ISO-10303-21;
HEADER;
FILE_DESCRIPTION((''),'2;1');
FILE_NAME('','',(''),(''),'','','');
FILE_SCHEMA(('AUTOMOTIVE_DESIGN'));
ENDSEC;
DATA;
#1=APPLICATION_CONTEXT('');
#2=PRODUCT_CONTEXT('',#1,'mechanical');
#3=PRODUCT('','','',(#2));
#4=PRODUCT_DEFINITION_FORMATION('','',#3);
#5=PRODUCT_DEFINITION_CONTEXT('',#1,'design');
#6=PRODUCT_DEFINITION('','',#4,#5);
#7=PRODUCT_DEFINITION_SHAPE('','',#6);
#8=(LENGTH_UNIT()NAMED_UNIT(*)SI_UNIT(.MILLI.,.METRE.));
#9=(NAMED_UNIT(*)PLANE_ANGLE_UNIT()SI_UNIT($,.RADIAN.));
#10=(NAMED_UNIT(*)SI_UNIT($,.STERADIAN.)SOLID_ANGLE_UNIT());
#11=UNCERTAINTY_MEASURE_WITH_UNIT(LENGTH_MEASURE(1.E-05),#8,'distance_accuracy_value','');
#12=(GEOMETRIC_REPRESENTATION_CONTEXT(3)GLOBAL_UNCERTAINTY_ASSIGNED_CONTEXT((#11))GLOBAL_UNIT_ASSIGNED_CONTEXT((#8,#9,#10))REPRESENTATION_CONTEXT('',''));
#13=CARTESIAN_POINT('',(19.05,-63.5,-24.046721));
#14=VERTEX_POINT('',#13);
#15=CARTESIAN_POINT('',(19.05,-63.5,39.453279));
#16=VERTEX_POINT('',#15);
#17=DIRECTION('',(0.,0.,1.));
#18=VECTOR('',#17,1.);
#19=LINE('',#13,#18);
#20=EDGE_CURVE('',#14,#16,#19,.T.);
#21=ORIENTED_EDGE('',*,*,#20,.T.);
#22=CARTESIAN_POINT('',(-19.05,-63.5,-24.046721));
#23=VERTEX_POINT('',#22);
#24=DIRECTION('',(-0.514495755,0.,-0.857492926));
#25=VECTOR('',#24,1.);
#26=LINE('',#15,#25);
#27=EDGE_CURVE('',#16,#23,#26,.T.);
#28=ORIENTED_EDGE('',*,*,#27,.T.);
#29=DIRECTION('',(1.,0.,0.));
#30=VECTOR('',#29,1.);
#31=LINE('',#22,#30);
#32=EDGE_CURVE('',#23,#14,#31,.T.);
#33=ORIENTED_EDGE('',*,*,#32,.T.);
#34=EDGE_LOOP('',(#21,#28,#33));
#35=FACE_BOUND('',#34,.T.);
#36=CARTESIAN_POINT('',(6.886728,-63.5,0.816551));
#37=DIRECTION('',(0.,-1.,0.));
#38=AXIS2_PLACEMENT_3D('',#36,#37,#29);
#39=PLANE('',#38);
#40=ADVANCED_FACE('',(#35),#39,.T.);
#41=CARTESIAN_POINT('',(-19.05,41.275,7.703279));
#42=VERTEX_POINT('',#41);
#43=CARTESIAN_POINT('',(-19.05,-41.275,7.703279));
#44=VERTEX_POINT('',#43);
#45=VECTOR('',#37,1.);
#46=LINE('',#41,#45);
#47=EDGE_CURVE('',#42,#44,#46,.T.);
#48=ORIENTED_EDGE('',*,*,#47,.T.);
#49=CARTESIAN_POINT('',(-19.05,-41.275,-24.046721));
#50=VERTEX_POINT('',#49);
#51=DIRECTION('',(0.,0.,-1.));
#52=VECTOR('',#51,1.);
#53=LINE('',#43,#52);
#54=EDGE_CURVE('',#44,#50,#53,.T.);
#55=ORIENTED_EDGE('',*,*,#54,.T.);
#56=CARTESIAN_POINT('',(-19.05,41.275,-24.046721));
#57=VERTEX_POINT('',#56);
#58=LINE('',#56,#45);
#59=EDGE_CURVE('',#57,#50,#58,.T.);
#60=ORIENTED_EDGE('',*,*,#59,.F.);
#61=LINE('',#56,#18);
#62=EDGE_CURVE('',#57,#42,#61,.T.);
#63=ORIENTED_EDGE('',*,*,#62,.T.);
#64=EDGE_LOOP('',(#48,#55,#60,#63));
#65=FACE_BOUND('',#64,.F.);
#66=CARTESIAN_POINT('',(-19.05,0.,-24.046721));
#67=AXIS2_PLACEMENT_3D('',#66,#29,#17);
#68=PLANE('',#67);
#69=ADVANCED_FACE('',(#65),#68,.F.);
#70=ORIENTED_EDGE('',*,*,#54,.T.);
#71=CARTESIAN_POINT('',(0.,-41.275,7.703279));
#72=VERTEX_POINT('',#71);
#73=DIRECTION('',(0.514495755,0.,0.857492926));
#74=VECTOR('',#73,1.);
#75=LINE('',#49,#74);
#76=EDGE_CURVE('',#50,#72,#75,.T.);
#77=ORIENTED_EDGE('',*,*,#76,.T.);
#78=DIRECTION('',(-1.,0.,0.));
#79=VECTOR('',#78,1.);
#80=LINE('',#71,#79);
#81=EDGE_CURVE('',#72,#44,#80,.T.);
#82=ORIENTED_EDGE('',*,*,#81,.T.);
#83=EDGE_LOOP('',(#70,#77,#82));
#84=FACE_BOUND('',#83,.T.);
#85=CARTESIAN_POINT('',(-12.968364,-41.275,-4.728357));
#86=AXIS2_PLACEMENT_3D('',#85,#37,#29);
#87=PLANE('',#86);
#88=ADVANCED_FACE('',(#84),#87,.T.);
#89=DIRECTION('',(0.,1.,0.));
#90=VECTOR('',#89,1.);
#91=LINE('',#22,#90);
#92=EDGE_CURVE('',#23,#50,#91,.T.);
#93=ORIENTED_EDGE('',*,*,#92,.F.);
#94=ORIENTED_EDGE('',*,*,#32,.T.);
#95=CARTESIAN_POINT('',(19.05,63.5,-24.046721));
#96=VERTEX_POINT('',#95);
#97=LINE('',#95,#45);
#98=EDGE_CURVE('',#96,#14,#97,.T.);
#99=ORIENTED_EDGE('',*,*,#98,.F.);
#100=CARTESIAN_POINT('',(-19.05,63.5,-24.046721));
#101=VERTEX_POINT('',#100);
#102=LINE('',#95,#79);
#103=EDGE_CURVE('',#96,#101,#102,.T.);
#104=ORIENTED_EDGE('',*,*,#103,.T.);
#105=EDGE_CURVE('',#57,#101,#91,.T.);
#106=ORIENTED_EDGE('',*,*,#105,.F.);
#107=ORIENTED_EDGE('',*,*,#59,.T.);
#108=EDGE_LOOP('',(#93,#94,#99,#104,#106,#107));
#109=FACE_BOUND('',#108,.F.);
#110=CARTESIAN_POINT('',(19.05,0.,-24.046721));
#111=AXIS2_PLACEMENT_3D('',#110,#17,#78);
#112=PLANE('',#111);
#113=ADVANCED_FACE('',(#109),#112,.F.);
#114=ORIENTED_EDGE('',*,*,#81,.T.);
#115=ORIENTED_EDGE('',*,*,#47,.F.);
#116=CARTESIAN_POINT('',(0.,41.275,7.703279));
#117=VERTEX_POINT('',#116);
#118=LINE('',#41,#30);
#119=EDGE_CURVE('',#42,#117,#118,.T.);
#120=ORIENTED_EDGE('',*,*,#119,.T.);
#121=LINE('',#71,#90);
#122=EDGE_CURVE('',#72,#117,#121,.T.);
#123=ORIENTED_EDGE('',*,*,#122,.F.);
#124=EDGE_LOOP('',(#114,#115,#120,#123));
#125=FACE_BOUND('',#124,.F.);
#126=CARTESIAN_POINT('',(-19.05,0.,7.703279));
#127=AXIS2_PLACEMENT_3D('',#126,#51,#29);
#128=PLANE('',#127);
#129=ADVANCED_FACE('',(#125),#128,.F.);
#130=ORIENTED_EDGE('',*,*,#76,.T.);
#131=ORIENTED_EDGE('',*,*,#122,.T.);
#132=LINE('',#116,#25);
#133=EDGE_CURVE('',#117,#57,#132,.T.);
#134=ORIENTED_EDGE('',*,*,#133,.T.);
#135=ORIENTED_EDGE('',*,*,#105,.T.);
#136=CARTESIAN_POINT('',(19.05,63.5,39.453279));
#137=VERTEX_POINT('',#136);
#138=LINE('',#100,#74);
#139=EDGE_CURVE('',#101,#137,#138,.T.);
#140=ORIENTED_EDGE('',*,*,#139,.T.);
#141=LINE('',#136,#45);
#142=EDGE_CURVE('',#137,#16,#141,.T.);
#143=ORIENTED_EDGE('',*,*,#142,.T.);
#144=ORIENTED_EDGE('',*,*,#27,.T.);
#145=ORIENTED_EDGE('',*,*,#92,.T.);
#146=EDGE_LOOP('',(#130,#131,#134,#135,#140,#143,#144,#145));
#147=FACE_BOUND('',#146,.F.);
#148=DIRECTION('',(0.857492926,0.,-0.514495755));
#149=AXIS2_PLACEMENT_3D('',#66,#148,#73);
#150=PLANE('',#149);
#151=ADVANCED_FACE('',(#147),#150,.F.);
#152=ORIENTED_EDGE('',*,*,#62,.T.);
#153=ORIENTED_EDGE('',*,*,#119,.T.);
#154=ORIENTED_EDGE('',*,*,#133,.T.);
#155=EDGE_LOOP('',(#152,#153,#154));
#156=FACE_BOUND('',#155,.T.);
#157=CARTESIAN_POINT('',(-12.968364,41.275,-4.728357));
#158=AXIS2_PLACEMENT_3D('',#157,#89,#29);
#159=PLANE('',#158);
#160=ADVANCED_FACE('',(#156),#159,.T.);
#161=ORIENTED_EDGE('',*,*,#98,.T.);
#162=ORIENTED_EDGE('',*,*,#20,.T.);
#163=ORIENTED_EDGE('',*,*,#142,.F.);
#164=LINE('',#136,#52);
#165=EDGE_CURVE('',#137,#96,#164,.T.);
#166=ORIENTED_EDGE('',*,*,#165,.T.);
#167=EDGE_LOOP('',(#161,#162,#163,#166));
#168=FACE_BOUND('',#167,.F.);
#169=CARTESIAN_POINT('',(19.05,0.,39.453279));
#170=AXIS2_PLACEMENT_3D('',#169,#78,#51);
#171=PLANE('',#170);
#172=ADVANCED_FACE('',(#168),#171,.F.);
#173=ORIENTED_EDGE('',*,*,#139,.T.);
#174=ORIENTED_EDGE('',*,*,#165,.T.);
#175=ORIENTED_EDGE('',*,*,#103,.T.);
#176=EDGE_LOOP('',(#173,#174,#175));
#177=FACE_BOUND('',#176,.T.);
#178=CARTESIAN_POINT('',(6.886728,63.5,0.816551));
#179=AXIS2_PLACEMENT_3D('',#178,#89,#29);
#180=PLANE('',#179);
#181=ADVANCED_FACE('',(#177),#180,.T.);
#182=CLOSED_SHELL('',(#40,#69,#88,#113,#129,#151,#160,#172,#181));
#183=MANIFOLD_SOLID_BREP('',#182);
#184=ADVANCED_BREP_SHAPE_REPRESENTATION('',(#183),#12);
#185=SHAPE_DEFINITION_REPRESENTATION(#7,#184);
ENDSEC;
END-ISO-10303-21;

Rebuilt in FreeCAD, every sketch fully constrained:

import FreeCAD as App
import Part
import Sketcher

V = App.Vector
Q = App.Units.Quantity

doc = App.newDocument("Part")
params = doc.addObject("Spreadsheet::Sheet", "Params")
for row, (alias, value) in enumerate([
    ("sketch1_width", "1.5 in"),
    ("sketch1_height", "2.5 in"),
    ("pad1_length", "2.5 in"),
    ("sketch2_width", "1.5 in"),
    ("sketch2_height", "2.5 in"),
    ("pad2_length", "2.5 in"),
    ("sketch3_width", "0.75 in"),
    ("sketch3_height", "1.25 in"),
    ("pad3_length", "1.625 in"),
    ("sketch4_width", "0.75 in"),
    ("sketch4_height", "1.25 in"),
    ("pad4_length", "1.625 in"),
], start=1):
    params.set(f"A{row}", alias)
    params.set(f"B{row}", "=" + value)
    params.setAlias(f"B{row}", alias)

body = doc.addObject("PartDesign::Body", "Body")

# Sketch on XZ plane
sketch1 = doc.addObject("Sketcher::SketchObject", "Sketch")
body.addObject(sketch1)
sketch1.AttachmentSupport = (doc.XZ_Plane, [""])
sketch1.MapMode = "FlatFace"
sketch1.addGeometry([
    Part.LineSegment(V(-19, -24, 0), V(19, -24, 0)),
    Part.LineSegment(V(19, -24, 0), V(19, 39, 0)),
    Part.LineSegment(V(19, 39, 0), V(-19, -24, 0)),
], False)
sketch1.addConstraint([
    Sketcher.Constraint("Coincident", 0, 2, 1, 1),
    Sketcher.Constraint("Coincident", 1, 2, 2, 1),
    Sketcher.Constraint("Coincident", 2, 2, 0, 1),
    Sketcher.Constraint("Horizontal", 0),
    Sketcher.Constraint("Vertical", 1),
    Sketcher.Constraint("DistanceX", 0, 1, 0, 2, Q("1.5 in")),
    Sketcher.Constraint("DistanceY", 1, 1, 1, 2, Q("2.5 in")),
    Sketcher.Constraint("DistanceX", -1, 1, 0, 2, Q("0.75 in")),
    Sketcher.Constraint("DistanceY", 0, 2, -1, 1, Q("24.046721 mm")),
])
sketch1.setExpression("Constraints[5]", "Params.sketch1_width")
sketch1.setExpression("Constraints[6]", "Params.sketch1_height")
pad1 = doc.addObject("PartDesign::Pad", "Pad")
body.addObject(pad1)
pad1.Profile = sketch1
pad1.setExpression("Length", "Params.pad1_length")

# Sketch on XZ plane
sketch2 = doc.addObject("Sketcher::SketchObject", "Sketch001")
body.addObject(sketch2)
sketch2.AttachmentSupport = (doc.XZ_Plane, [""])
sketch2.MapMode = "FlatFace"
sketch2.addGeometry([
    Part.LineSegment(V(19, -24, 0), V(-19, -24, 0)),
    Part.LineSegment(V(-19, -24, 0), V(19, 39, 0)),
    Part.LineSegment(V(19, 39, 0), V(19, -24, 0)),
], False)
sketch2.addConstraint([
    Sketcher.Constraint("Coincident", 0, 2, 1, 1),
    Sketcher.Constraint("Coincident", 1, 2, 2, 1),
    Sketcher.Constraint("Coincident", 2, 2, 0, 1),
    Sketcher.Constraint("Horizontal", 0),
    Sketcher.Constraint("Vertical", 2),
    Sketcher.Constraint("DistanceX", 0, 2, 0, 1, Q("1.5 in")),
    Sketcher.Constraint("DistanceY", 2, 2, 2, 1, Q("2.5 in")),
    Sketcher.Constraint("DistanceX", 0, 2, -1, 1, Q("0.75 in")),
    Sketcher.Constraint("DistanceY", 0, 2, -1, 1, Q("24.046721 mm")),
])
sketch2.setExpression("Constraints[5]", "Params.sketch2_width")
sketch2.setExpression("Constraints[6]", "Params.sketch2_height")
pad2 = doc.addObject("PartDesign::Pad", "Pad001")
body.addObject(pad2)
pad2.Profile = sketch2
pad2.setExpression("Length", "Params.pad2_length")
pad2.Reversed = True

# Sketch on XZ plane
sketch3 = doc.addObject("Sketcher::SketchObject", "Sketch002")
body.addObject(sketch3)
sketch3.AttachmentSupport = (doc.XZ_Plane, [""])
sketch3.MapMode = "FlatFace"
sketch3.addGeometry([
    Part.LineSegment(V(-19, 8, 0), V(-19, -24, 0)),
    Part.LineSegment(V(-19, -24, 0), V(0, 8, 0)),
    Part.LineSegment(V(0, 8, 0), V(-19, 8, 0)),
], False)
sketch3.addConstraint([
    Sketcher.Constraint("Coincident", 0, 2, 1, 1),
    Sketcher.Constraint("Coincident", 1, 2, 2, 1),
    Sketcher.Constraint("Coincident", 2, 2, 0, 1),
    Sketcher.Constraint("Vertical", 0),
    Sketcher.Constraint("Horizontal", 2),
    Sketcher.Constraint("PointOnObject", 1, 2, -2),
    Sketcher.Constraint("DistanceX", 2, 2, 2, 1, Q("0.75 in")),
    Sketcher.Constraint("DistanceY", 0, 2, 0, 1, Q("1.25 in")),
    Sketcher.Constraint("DistanceY", 0, 2, -1, 1, Q("24.046721 mm")),
])
sketch3.setExpression("Constraints[6]", "Params.sketch3_width")
sketch3.setExpression("Constraints[7]", "Params.sketch3_height")
pad3 = doc.addObject("PartDesign::Pad", "Pad002")
body.addObject(pad3)
pad3.Profile = sketch3
pad3.setExpression("Length", "Params.pad3_length")

# Sketch on XZ plane
sketch4 = doc.addObject("Sketcher::SketchObject", "Sketch003")
body.addObject(sketch4)
sketch4.AttachmentSupport = (doc.XZ_Plane, [""])
sketch4.MapMode = "FlatFace"
sketch4.addGeometry([
    Part.LineSegment(V(-19, 8, 0), V(0, 8, 0)),
    Part.LineSegment(V(0, 8, 0), V(-19, -24, 0)),
    Part.LineSegment(V(-19, -24, 0), V(-19, 8, 0)),
], False)
sketch4.addConstraint([
    Sketcher.Constraint("Coincident", 0, 2, 1, 1),
    Sketcher.Constraint("Coincident", 1, 2, 2, 1),
    Sketcher.Constraint("Coincident", 2, 2, 0, 1),
    Sketcher.Constraint("Horizontal", 0),
    Sketcher.Constraint("Vertical", 2),
    Sketcher.Constraint("PointOnObject", 0, 2, -2),
    Sketcher.Constraint("DistanceX", 0, 1, 0, 2, Q("0.75 in")),
    Sketcher.Constraint("DistanceY", 2, 1, 2, 2, Q("1.25 in")),
    Sketcher.Constraint("DistanceY", -1, 1, 0, 2, Q("7.703279 mm")),
])
sketch4.setExpression("Constraints[6]", "Params.sketch4_width")
sketch4.setExpression("Constraints[7]", "Params.sketch4_height")
pad4 = doc.addObject("PartDesign::Pad", "Pad003")
body.addObject(pad4)
pad4.Profile = sketch4
pad4.setExpression("Length", "Params.pad4_length")
pad4.Reversed = True

doc.recompute()
